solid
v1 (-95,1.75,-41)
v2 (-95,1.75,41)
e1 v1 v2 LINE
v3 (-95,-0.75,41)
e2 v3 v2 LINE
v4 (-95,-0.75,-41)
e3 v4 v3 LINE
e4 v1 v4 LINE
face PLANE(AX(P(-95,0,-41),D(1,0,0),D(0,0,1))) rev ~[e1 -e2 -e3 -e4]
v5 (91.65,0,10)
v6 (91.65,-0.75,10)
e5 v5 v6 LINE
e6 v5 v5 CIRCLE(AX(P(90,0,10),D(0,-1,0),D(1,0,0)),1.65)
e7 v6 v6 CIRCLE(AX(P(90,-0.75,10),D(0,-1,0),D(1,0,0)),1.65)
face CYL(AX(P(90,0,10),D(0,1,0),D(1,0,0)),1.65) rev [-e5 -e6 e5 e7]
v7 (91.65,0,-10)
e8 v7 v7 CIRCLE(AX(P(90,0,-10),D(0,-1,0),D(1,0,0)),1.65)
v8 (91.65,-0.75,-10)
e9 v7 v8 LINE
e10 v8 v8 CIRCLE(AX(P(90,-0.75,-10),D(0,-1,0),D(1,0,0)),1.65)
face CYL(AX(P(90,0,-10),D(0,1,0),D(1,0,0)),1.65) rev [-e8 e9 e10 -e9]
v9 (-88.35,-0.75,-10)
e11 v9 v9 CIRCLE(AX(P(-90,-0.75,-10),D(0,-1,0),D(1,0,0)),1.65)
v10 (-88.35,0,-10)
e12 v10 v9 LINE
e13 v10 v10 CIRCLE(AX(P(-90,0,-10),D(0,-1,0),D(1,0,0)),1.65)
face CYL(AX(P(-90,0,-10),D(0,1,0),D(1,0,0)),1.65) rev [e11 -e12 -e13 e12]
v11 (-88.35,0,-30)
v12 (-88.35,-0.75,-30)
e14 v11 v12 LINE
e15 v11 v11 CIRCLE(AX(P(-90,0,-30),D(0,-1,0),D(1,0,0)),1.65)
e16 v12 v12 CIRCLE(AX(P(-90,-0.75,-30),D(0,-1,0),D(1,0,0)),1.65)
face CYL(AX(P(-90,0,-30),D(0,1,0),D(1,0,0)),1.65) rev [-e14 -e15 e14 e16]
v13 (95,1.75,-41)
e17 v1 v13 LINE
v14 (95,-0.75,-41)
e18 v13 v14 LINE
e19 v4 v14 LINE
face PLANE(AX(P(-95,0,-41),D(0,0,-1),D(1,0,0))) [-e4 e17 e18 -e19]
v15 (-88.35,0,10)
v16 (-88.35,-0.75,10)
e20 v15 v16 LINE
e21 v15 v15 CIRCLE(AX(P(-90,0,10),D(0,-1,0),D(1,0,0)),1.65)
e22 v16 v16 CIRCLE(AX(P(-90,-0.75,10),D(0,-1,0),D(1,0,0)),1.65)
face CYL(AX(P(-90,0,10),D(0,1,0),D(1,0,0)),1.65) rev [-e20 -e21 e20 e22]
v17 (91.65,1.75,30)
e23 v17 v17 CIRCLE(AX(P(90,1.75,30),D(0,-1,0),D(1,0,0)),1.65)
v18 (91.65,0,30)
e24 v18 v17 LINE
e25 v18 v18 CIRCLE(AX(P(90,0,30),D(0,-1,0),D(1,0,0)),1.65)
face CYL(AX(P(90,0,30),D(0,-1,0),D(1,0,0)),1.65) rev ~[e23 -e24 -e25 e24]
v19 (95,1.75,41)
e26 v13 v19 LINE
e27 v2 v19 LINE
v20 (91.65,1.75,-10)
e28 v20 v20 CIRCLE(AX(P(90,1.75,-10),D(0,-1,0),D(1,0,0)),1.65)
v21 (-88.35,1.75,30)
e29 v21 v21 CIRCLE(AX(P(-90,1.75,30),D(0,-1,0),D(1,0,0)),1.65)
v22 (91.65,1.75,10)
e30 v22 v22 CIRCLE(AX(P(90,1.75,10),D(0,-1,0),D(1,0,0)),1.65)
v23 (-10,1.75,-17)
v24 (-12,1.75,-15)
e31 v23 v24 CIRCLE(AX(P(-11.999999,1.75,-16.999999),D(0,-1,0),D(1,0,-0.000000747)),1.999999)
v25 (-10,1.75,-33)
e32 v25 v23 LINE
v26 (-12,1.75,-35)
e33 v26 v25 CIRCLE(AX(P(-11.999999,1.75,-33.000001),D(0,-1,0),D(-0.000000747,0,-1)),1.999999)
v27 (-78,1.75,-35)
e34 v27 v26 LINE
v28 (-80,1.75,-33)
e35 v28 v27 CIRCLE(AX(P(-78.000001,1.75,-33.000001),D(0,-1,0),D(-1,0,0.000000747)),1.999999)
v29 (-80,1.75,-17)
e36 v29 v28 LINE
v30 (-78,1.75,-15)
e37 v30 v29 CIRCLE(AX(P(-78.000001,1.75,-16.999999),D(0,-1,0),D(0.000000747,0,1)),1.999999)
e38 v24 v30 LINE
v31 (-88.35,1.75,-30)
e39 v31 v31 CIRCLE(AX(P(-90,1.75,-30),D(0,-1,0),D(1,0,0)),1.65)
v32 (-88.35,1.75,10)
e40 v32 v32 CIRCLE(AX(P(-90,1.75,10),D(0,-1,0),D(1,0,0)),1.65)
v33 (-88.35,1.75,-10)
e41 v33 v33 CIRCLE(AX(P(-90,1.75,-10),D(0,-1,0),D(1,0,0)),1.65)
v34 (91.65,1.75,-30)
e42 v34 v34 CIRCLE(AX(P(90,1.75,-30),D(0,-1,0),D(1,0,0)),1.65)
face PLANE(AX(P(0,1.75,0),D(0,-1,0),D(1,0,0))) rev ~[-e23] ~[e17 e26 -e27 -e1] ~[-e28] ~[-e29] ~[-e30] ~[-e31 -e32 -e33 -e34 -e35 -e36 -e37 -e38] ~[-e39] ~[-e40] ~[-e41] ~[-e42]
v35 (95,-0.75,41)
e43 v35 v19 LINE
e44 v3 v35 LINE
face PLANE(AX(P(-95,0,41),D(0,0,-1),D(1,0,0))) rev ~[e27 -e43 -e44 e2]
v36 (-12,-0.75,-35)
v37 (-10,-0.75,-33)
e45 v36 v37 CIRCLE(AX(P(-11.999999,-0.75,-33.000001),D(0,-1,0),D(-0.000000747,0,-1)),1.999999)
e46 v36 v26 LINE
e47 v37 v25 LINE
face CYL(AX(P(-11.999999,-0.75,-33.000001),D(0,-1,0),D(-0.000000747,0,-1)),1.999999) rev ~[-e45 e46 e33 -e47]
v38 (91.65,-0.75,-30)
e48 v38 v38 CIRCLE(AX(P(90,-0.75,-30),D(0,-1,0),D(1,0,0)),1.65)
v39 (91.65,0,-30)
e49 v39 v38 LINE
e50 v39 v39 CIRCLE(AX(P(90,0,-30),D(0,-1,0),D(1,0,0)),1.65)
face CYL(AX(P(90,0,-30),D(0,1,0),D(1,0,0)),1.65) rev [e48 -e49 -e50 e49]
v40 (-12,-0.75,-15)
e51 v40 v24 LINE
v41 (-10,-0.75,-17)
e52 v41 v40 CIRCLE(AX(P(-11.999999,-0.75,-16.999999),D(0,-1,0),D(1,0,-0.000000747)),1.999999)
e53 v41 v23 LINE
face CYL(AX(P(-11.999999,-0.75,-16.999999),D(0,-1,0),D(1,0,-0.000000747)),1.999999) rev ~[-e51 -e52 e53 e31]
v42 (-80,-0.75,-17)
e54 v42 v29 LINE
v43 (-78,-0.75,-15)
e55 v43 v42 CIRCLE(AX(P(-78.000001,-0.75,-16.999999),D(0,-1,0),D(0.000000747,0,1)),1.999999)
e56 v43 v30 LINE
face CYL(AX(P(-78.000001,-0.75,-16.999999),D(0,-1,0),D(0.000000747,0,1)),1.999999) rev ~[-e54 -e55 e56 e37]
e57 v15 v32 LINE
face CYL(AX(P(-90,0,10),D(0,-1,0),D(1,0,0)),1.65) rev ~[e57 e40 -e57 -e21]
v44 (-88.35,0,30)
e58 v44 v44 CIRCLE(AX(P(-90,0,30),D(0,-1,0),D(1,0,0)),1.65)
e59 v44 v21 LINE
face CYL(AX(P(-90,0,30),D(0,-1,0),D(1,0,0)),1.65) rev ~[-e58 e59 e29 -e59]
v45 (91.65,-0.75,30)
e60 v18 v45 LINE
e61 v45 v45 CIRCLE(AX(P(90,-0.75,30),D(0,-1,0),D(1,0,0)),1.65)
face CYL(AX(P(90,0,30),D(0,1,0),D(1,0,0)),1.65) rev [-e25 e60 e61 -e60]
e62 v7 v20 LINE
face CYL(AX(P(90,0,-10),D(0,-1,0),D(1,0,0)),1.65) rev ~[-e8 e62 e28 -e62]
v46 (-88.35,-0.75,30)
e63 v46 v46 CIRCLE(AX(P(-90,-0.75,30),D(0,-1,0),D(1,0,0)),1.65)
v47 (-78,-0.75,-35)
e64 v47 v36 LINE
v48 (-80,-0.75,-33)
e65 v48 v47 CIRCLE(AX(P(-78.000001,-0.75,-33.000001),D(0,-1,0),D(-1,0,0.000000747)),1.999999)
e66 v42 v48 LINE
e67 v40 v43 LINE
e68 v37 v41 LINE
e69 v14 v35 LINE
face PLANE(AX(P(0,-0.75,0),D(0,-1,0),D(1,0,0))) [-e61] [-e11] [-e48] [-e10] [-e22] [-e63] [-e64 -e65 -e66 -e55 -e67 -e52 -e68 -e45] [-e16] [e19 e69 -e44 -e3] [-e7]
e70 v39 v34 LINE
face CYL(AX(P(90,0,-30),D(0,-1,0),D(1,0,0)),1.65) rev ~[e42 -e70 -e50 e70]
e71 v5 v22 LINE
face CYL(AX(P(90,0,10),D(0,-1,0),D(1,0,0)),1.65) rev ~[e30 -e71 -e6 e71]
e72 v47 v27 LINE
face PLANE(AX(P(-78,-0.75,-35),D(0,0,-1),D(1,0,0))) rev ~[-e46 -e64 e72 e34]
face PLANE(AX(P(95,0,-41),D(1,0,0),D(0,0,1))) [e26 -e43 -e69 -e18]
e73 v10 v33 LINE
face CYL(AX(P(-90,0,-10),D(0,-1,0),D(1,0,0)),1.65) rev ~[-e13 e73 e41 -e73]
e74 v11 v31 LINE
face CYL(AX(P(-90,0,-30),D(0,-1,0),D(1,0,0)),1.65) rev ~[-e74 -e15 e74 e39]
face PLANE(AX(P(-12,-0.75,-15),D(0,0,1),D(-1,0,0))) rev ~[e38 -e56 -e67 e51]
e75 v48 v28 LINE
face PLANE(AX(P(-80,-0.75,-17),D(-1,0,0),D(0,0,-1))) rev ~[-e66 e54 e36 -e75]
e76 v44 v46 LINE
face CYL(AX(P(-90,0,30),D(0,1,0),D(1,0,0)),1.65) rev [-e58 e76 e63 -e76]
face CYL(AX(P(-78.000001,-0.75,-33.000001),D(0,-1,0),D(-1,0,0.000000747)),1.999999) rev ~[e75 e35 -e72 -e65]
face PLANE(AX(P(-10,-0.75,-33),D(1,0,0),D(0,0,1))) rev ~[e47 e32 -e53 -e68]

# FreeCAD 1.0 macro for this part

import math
import FreeCAD as App
import Part
import Sketcher

V = App.Vector


def add_polygon(sketch, points):
    """Adds a closed chain of lines whose ends are joined by coincident constraints."""
    first, n = sketch.GeometryCount, len(points)
    for a, b in zip(points, points[1:] + points[:1]):
        sketch.addGeometry(Part.LineSegment(App.Vector(*a, 0), App.Vector(*b, 0)), False)
    for i in range(n):
        sketch.addConstraint(Sketcher.Constraint("Coincident", first + i, 2, first + (i + 1) % n, 1))

doc = App.newDocument("Part")
body = doc.addObject("PartDesign::Body", "Body")

# Sketch on XZ plane
sketch1 = doc.addObject("Sketcher::SketchObject", "Sketch")
body.addObject(sketch1)
sketch1.AttachmentSupport = (doc.XZ_Plane, [""])
sketch1.MapMode = "FlatFace"
add_polygon(sketch1, [(-95, 41), (-95, -41), (95, -41), (95, 41)])  # lines 0-3
sketch1.addGeometry(Part.Circle(V(-90, -30, 0), V(0, 0, 1), 1.6), False)  # 4
sketch1.addGeometry(Part.Circle(V(-90, -10, 0), V(0, 0, 1), 1.6), False)  # 5
sketch1.addGeometry(Part.Circle(V(90, -30, 0), V(0, 0, 1), 1.6), False)  # 6
sketch1.addGeometry(Part.Circle(V(90, -10, 0), V(0, 0, 1), 1.6), False)  # 7
sketch1.addGeometry(Part.Circle(V(-90, 10, 0), V(0, 0, 1), 1.6), False)  # 8
sketch1.addGeometry(Part.Circle(V(-90, 30, 0), V(0, 0, 1), 1.6), False)  # 9
sketch1.addGeometry(Part.Circle(V(90, 10, 0), V(0, 0, 1), 1.6), False)  # 10
sketch1.addGeometry(Part.Circle(V(90, 30, 0), V(0, 0, 1), 1.6), False)  # 11
sketch1.addConstraint([
    Sketcher.Constraint("Vertical", 0),
    Sketcher.Constraint("Horizontal", 1),
    Sketcher.Constraint("Vertical", 2),
    Sketcher.Constraint("Horizontal", 3),
    Sketcher.Constraint("Equal", 4, 5),
    Sketcher.Constraint("Equal", 5, 6),
    Sketcher.Constraint("Equal", 6, 7),
    Sketcher.Constraint("Equal", 7, 8),
    Sketcher.Constraint("Equal", 8, 9),
    Sketcher.Constraint("Equal", 9, 10),
    Sketcher.Constraint("Equal", 10, 11),
    Sketcher.Constraint("Symmetric", 7, 3, 8, 3, -1, 1),
    Sketcher.Constraint("Symmetric", 6, 3, 9, 3, -1, 1),
    Sketcher.Constraint("Symmetric", 5, 3, 10, 3, -1, 1),
    Sketcher.Constraint("Symmetric", 4, 3, 11, 3, -1, 1),
    Sketcher.Constraint("Symmetric", 0, 2, 2, 2, -1, 1),
    Sketcher.Constraint("Symmetric", 4, 3, 6, 3, -2),
    Sketcher.Constraint("Symmetric", 5, 3, 7, 3, -2),
    Sketcher.Constraint("Vertical", 4, 3, 5, 3),
    Sketcher.Constraint("Diameter", 4, 3.3),
    Sketcher.Constraint("DistanceX", 1, 1, 1, 2, 190.0),
    Sketcher.Constraint("DistanceY", 0, 2, 0, 1, 82.0),
    Sketcher.Constraint("DistanceX", 4, 3, -1, 1, 90.0),
    Sketcher.Constraint("DistanceY", 4, 3, -1, 1, 30.0),
    Sketcher.Constraint("DistanceY", 5, 3, -1, 1, 10.0),
])
pad1 = doc.addObject("PartDesign::Pad", "Pad")
body.addObject(pad1)
pad1.Profile = sketch1
pad1.Type = "TwoLengths"
pad1.Length = 0.75
pad1.Length2 = 1.75

# Sketch on XZ plane
sketch2 = doc.addObject("Sketcher::SketchObject", "Sketch001")
body.addObject(sketch2)
sketch2.AttachmentSupport = (doc.XZ_Plane, [""])
sketch2.MapMode = "FlatFace"
sketch2.AttachmentOffset = App.Placement(V(0, 0, 0.75), App.Rotation())
sketch2.addGeometry([
    Part.LineSegment(V(-80, -17, 0), V(-80, -33, 0)),  # 0
    Part.ArcOfCircle(Part.Circle(V(-78, -33, 0), V(0, 0, 1), 2), math.radians(180), math.radians(270)),  # 1
    Part.LineSegment(V(-78, -35, 0), V(-12, -35, 0)),  # 2
    Part.ArcOfCircle(Part.Circle(V(-12, -33, 0), V(0, 0, 1), 2), math.radians(-90), math.radians(0)),  # 3
    Part.LineSegment(V(-10, -33, 0), V(-10, -17, 0)),  # 4
    Part.ArcOfCircle(Part.Circle(V(-12, -17, 0), V(0, 0, 1), 2), math.radians(0), math.radians(90)),  # 5
    Part.LineSegment(V(-12, -15, 0), V(-78, -15, 0)),  # 6
    Part.ArcOfCircle(Part.Circle(V(-78, -17, 0), V(0, 0, 1), 2), math.radians(90), math.radians(180)),  # 7
], False)
sketch2.addConstraint([
    Sketcher.Constraint("Tangent", 0, 2, 1, 1),
    Sketcher.Constraint("Tangent", 1, 2, 2, 1),
    Sketcher.Constraint("Tangent", 2, 2, 3, 1),
    Sketcher.Constraint("Tangent", 3, 2, 4, 1),
    Sketcher.Constraint("Tangent", 4, 2, 5, 1),
    Sketcher.Constraint("Tangent", 5, 2, 6, 1),
    Sketcher.Constraint("Tangent", 6, 2, 7, 1),
    Sketcher.Constraint("Tangent", 7, 2, 0, 1),
    Sketcher.Constraint("Vertical", 0),
    Sketcher.Constraint("Horizontal", 2),
    Sketcher.Constraint("Vertical", 4),
    Sketcher.Constraint("Horizontal", 6),
    Sketcher.Constraint("Equal", 1, 3),
    Sketcher.Constraint("Equal", 3, 5),
    Sketcher.Constraint("Equal", 5, 7),
    Sketcher.Constraint("Radius", 1, 1.999999),
    Sketcher.Constraint("DistanceX", 2, 1, 2, 2, 66.0),
    Sketcher.Constraint("DistanceY", 0, 2, 0, 1, 16.0),
    Sketcher.Constraint("DistanceX", 1, 3, -1, 1, 78.000001),
    Sketcher.Constraint("DistanceY", 1, 3, -1, 1, 33.000001),
])
pocket1 = doc.addObject("PartDesign::Pocket", "Pocket")
body.addObject(pocket1)
pocket1.Profile = sketch2
pocket1.Length = 5

doc.recompute()
